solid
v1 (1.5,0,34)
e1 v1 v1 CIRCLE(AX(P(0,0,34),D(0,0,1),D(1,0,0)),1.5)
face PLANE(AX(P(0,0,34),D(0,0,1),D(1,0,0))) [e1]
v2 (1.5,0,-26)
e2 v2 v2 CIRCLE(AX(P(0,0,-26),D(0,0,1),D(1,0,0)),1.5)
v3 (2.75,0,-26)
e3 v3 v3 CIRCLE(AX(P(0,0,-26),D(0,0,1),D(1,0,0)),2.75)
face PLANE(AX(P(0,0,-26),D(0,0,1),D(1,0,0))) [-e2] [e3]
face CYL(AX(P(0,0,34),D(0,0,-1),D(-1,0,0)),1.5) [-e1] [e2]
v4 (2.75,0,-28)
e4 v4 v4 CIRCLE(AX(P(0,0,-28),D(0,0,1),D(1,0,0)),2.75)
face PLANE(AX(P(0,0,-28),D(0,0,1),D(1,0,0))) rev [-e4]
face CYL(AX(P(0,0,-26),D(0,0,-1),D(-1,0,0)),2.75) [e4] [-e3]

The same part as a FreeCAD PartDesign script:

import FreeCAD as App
import Part
import Sketcher
from FreeCAD import Vector

doc = App.newDocument("Part")
body = doc.addObject("PartDesign::Body", "Body")

# Sketch on XY plane
sketch1 = body.newObject("Sketcher::SketchObject", "Sketch")
sketch1.AttachmentSupport = (doc.getObject("XY_Plane"), [""])
sketch1.MapMode = "FlatFace"
sketch1.AttachmentOffset = App.Placement(Vector(0, 0, -26), App.Rotation())
sketch1.addGeometry(Part.Circle(Vector(0, 0, 0), Vector(0, 0, 1), 1.5), False)
sketch1.addConstraint(Sketcher.Constraint("Coincident", 0, 3, -1, 1))
sketch1.addConstraint(Sketcher.Constraint("Diameter", 0, 3.0))
pad1 = body.newObject("PartDesign::Pad", "Pad")
pad1.Profile = sketch1
pad1.Length = 60

# Sketch on XY plane
sketch2 = body.newObject("Sketcher::SketchObject", "Sketch001")
sketch2.AttachmentSupport = (doc.getObject("XY_Plane"), [""])
sketch2.MapMode = "FlatFace"
sketch2.AttachmentOffset = App.Placement(Vector(0, 0, -28), App.Rotation())
sketch2.addGeometry(Part.Circle(Vector(0, 0, 0), Vector(0, 0, 1), 2.75), False)
sketch2.addConstraint(Sketcher.Constraint("Coincident", 0, 3, -1, 1))
sketch2.addConstraint(Sketcher.Constraint("Diameter", 0, 5.5))
pad2 = body.newObject("PartDesign::Pad", "Pad001")
pad2.Profile = sketch2
pad2.Length = 2

doc.recompute()
